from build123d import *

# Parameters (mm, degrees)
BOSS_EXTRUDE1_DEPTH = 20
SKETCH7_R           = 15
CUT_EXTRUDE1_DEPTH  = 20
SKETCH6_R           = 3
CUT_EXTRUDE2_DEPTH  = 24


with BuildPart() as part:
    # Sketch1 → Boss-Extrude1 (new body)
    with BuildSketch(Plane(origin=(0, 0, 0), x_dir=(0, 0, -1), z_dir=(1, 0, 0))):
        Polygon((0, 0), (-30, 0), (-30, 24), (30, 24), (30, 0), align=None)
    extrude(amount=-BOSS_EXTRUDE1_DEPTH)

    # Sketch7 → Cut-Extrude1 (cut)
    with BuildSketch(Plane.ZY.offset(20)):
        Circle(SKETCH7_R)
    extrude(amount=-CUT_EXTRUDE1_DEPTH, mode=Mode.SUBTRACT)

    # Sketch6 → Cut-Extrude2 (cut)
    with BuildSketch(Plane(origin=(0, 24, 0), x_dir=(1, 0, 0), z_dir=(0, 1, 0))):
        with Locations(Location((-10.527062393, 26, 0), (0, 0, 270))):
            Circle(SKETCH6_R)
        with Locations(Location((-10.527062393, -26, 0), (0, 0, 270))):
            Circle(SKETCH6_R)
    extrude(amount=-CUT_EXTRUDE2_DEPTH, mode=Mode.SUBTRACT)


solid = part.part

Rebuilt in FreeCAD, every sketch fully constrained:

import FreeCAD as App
import Part
import Sketcher

doc = App.newDocument("Part")
body = doc.addObject("PartDesign::Body", "Body")

sketch1 = body.newObject("Sketcher::SketchObject", "Sketch")
sketch1.AttachmentSupport = (doc.getObject("YZ_Plane"), [""])
sketch1.MapMode = "FlatFace"
sketch1.addGeometry([
    Part.LineSegment(App.Vector(0, 30, 0), App.Vector(0, -30, 0)),
    Part.LineSegment(App.Vector(0, -30, 0), App.Vector(24, -30, 0)),
    Part.LineSegment(App.Vector(24, -30, 0), App.Vector(24, 30, 0)),
    Part.LineSegment(App.Vector(24, 30, 0), App.Vector(0, 30, 0)),
], False)
sketch1.addConstraint([
    Sketcher.Constraint("Coincident", 0, 2, 1, 1),
    Sketcher.Constraint("Coincident", 1, 2, 2, 1),
    Sketcher.Constraint("Coincident", 2, 2, 3, 1),
    Sketcher.Constraint("Coincident", 3, 2, 0, 1),
    Sketcher.Constraint("Vertical", 0),
    Sketcher.Constraint("Horizontal", 1),
    Sketcher.Constraint("Vertical", 2),
    Sketcher.Constraint("Horizontal", 3),
    Sketcher.Constraint("Symmetric", 0, 2, 3, 2, -1, 1),
    Sketcher.Constraint("DistanceX", 1, 1, 1, 2, 24.0),
    Sketcher.Constraint("DistanceY", 0, 2, 0, 1, 60.0),
])
pad1 = body.newObject("PartDesign::Pad", "Pad")
pad1.Profile = sketch1
pad1.Length = 20
pad1.Reversed = True

sketch2 = body.newObject("Sketcher::SketchObject", "Sketch001")
sketch2.AttachmentSupport = (doc.getObject("YZ_Plane"), [""])
sketch2.MapMode = "FlatFace"
sketch2.AttachmentOffset = App.Placement(App.Vector(0, 0, -20), App.Rotation())
sketch2.addGeometry(Part.Circle(App.Vector(0, 0, 0), App.Vector(0, 0, 1), 15), False)
sketch2.addConstraint([
    Sketcher.Constraint("Coincident", 0, 3, -1, 1),
    Sketcher.Constraint("Diameter", 0, 30.0),
])
pocket1 = body.newObject("PartDesign::Pocket", "Pocket")
pocket1.Profile = sketch2
pocket1.Length = 20
pocket1.Reversed = True

sketch3 = body.newObject("Sketcher::SketchObject", "Sketch002")
sketch3.AttachmentSupport = (doc.getObject("XZ_Plane"), [""])
sketch3.MapMode = "FlatFace"
sketch3.AttachmentOffset = App.Placement(App.Vector(0, 0, -24), App.Rotation())
sketch3.addGeometry([
    Part.Circle(App.Vector(-10.5, -26, 0), App.Vector(0, 0, 1), 3),
    Part.Circle(App.Vector(-10.5, 26, 0), App.Vector(0, 0, 1), 3),
], False)
sketch3.addConstraint([
    Sketcher.Constraint("Equal", 0, 1),
    Sketcher.Constraint("Symmetric", 0, 3, 1, 3, -1),
    Sketcher.Constraint("Diameter", 0, 6.0),
    Sketcher.Constraint("DistanceY", 0, 3, -1, 1, 26.0),
    Sketcher.Constraint("DistanceX", 0, 3, -1, 1, 10.527062),
])
pocket2 = body.newObject("PartDesign::Pocket", "Pocket001")
pocket2.Profile = sketch3
pocket2.Length = 24
pocket2.Reversed = True

doc.recompute()
